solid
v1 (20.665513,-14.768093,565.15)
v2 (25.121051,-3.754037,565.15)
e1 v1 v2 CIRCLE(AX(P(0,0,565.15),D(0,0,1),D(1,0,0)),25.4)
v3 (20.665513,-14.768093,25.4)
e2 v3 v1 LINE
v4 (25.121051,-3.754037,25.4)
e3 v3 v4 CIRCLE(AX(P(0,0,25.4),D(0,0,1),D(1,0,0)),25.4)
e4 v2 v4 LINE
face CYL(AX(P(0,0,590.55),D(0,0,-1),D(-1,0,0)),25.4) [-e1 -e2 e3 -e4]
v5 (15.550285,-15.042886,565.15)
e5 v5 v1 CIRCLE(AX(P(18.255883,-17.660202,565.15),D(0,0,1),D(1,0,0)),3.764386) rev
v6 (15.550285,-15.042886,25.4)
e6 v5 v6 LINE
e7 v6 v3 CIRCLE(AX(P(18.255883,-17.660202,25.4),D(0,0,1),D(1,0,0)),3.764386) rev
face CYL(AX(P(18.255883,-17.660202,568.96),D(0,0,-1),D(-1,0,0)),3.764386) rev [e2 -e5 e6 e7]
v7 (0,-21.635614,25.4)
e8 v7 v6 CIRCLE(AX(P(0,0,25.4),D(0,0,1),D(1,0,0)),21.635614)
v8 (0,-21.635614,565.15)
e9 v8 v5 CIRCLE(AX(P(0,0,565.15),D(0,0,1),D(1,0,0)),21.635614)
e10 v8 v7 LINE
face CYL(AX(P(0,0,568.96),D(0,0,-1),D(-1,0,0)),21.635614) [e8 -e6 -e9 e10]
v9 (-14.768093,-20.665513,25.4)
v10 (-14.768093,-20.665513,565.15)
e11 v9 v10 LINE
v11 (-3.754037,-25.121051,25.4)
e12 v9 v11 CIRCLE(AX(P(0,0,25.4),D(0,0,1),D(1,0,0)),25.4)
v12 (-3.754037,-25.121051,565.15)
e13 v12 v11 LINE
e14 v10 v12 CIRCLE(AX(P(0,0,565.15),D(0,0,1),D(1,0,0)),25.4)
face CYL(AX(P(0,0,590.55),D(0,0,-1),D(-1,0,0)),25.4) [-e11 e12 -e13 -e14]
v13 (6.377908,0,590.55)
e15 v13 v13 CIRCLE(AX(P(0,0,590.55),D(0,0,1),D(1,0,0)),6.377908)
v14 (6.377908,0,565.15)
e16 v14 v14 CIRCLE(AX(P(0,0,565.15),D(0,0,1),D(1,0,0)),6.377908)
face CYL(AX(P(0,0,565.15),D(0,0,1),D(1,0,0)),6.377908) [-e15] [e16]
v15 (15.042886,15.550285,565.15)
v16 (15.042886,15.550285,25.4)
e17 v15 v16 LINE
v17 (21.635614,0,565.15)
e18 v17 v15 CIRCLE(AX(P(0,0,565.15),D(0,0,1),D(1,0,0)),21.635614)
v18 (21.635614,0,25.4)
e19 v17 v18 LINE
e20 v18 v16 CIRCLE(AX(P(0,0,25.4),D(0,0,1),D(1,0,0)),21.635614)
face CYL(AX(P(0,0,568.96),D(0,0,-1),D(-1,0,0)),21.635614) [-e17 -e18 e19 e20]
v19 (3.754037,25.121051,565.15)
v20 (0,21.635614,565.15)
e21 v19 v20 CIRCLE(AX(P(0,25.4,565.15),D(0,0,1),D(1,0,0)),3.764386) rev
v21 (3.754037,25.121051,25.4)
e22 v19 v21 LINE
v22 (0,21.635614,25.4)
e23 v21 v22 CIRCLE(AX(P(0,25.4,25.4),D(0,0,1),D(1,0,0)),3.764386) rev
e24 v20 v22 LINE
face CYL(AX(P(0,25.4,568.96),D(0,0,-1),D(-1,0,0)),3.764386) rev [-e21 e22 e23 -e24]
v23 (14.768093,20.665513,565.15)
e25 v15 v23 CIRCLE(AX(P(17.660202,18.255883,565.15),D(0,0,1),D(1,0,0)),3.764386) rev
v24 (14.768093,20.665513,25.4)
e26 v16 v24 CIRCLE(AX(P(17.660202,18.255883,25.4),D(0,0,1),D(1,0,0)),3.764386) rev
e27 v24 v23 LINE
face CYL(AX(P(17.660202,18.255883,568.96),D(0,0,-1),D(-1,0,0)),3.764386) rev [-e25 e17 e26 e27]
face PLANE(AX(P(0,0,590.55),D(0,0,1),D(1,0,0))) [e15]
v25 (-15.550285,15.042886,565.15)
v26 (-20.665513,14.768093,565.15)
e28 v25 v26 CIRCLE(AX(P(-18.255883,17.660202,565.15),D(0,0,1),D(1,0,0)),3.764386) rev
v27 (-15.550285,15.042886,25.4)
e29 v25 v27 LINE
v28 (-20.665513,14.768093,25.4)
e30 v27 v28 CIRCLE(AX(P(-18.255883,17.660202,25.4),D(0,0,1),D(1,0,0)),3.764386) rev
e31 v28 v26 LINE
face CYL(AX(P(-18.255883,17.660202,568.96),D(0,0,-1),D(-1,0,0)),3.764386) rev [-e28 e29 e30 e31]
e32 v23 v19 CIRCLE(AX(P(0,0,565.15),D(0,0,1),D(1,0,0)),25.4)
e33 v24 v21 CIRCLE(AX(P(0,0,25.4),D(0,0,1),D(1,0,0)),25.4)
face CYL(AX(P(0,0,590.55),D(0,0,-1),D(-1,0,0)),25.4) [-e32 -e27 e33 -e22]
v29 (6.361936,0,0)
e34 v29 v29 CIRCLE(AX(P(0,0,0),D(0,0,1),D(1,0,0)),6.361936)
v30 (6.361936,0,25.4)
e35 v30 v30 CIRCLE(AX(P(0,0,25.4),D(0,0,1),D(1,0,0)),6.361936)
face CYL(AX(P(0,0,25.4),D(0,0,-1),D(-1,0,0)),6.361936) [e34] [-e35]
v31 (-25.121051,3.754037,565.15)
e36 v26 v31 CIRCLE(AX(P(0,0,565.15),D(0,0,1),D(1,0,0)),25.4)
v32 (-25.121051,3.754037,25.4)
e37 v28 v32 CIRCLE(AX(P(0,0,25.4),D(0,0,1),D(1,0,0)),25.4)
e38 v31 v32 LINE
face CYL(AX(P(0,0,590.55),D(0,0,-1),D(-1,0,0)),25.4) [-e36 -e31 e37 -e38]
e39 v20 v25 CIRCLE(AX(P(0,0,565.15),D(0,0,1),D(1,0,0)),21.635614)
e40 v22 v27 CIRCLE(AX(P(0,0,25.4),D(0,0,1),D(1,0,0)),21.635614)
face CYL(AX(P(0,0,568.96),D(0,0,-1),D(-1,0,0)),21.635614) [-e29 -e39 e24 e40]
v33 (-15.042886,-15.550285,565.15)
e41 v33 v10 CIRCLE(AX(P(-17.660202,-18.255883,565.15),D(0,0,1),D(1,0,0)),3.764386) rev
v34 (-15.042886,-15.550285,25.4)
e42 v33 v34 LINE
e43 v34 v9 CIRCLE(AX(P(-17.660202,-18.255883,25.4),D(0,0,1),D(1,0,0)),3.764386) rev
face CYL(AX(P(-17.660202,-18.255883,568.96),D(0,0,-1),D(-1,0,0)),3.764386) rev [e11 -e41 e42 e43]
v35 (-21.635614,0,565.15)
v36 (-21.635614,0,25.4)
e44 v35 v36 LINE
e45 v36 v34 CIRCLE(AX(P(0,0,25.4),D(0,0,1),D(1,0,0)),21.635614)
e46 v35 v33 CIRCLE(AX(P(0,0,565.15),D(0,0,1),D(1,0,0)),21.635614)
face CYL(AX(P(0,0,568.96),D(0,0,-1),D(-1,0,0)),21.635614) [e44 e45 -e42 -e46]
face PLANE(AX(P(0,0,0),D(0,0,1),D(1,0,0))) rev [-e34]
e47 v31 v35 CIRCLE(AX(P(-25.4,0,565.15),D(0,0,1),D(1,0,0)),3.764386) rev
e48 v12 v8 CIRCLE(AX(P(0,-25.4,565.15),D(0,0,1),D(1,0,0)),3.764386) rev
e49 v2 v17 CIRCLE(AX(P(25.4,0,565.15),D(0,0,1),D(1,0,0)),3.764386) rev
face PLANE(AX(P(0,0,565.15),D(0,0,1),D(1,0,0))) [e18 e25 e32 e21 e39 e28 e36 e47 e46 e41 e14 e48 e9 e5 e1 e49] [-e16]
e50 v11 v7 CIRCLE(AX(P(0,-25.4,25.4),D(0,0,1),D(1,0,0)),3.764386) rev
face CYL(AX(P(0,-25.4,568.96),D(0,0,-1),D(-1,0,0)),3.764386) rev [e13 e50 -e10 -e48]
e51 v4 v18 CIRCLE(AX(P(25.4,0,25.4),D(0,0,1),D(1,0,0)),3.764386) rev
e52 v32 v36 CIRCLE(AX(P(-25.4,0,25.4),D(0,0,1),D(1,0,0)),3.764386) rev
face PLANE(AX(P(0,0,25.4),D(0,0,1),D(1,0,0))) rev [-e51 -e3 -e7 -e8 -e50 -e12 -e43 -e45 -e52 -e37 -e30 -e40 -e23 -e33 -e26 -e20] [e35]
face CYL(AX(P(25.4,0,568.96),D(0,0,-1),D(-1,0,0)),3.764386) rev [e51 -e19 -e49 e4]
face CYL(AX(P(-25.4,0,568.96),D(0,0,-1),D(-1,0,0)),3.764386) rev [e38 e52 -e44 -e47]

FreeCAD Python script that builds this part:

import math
import FreeCAD as App
import Part
import Sketcher
from FreeCAD import Vector
Q = App.Units.Quantity

doc = App.newDocument("Part")
body = doc.addObject("PartDesign::Body", "Body")

# Sketch on XY plane
sketch1 = doc.addObject("Sketcher::SketchObject", "Sketch")
body.addObject(sketch1)
sketch1.AttachmentSupport = (doc.XY_Plane, [""])
sketch1.MapMode = "FlatFace"
sketch1.addGeometry(Part.Circle(Vector(0, 0, 0), Vector(0, 0, 1), 25), False)
sketch1.addConstraint([
    Sketcher.Constraint("Coincident", 0, 3, -1, 1),
    Sketcher.Constraint("Diameter", 0, Q("2 in")),
])
pad1 = doc.addObject("PartDesign::Pad", "Pad")
body.addObject(pad1)
pad1.Profile = sketch1
pad1.Length = Q("23.25 in")

# Sketch on XY plane
sketch2 = doc.addObject("Sketcher::SketchObject", "Sketch001")
body.addObject(sketch2)
sketch2.AttachmentSupport = (doc.XY_Plane, [""])
sketch2.MapMode = "FlatFace"
sketch2.addGeometry([
    Part.LineSegment(Vector(-86, 86, 0), Vector(-86, -86, 0)),  # 0
    Part.LineSegment(Vector(-86, -86, 0), Vector(86, -86, 0)),  # 1
    Part.LineSegment(Vector(86, -86, 0), Vector(86, 86, 0)),  # 2
    Part.LineSegment(Vector(86, 86, 0), Vector(-86, 86, 0)),  # 3
    Part.Circle(Vector(0, 0, 0), Vector(0, 0, 1), 6),  # 4
], False)
sketch2.addConstraint([
    Sketcher.Constraint("Coincident", 0, 2, 1, 1),
    Sketcher.Constraint("Coincident", 1, 2, 2, 1),
    Sketcher.Constraint("Coincident", 2, 2, 3, 1),
    Sketcher.Constraint("Coincident", 3, 2, 0, 1),
    Sketcher.Constraint("Vertical", 0),
    Sketcher.Constraint("Horizontal", 1),
    Sketcher.Constraint("Vertical", 2),
    Sketcher.Constraint("Horizontal", 3),
    Sketcher.Constraint("Coincident", 4, 3, -1, 1),
    Sketcher.Constraint("Symmetric", 0, 2, 2, 2, -1, 1),
    Sketcher.Constraint("Equal", 3, 0),
    Sketcher.Constraint("Diameter", 4, 12.723871),
    Sketcher.Constraint("DistanceX", 1, 1, 1, 2, 171.78),
])
pocket1 = doc.addObject("PartDesign::Pocket", "Pocket")
body.addObject(pocket1)
pocket1.Profile = sketch2
pocket1.Length = Q("1 in")
pocket1.Reversed = True

# Sketch on XY plane
sketch3 = doc.addObject("Sketcher::SketchObject", "Sketch002")
body.addObject(sketch3)
sketch3.AttachmentSupport = (doc.XY_Plane, [""])
sketch3.MapMode = "FlatFace"
sketch3.AttachmentOffset = App.Placement(Vector(0, 0, 23.25 * 25.4), App.Rotation())
sketch3.addGeometry([
    Part.LineSegment(Vector(-86, 86, 0), Vector(-86, -86, 0)),  # 0
    Part.LineSegment(Vector(-86, -86, 0), Vector(86, -86, 0)),  # 1
    Part.LineSegment(Vector(86, -86, 0), Vector(86, 86, 0)),  # 2
    Part.LineSegment(Vector(86, 86, 0), Vector(-86, 86, 0)),  # 3
    Part.Circle(Vector(0, 0, 0), Vector(0, 0, 1), 6),  # 4
], False)
sketch3.addConstraint([
    Sketcher.Constraint("Coincident", 0, 2, 1, 1),
    Sketcher.Constraint("Coincident", 1, 2, 2, 1),
    Sketcher.Constraint("Coincident", 2, 2, 3, 1),
    Sketcher.Constraint("Coincident", 3, 2, 0, 1),
    Sketcher.Constraint("Vertical", 0),
    Sketcher.Constraint("Horizontal", 1),
    Sketcher.Constraint("Vertical", 2),
    Sketcher.Constraint("Horizontal", 3),
    Sketcher.Constraint("Coincident", 4, 3, -1, 1),
    Sketcher.Constraint("Symmetric", 0, 2, 2, 2, -1, 1),
    Sketcher.Constraint("Equal", 3, 0),
    Sketcher.Constraint("Diameter", 4, 12.755815),
    Sketcher.Constraint("DistanceX", 1, 1, 1, 2, 171.78),
])
pocket2 = doc.addObject("PartDesign::Pocket", "Pocket001")
body.addObject(pocket2)
pocket2.Profile = sketch3
pocket2.Length = Q("1 in")

# Sketch on XY plane
sketch4 = doc.addObject("Sketcher::SketchObject", "Sketch003")
body.addObject(sketch4)
sketch4.AttachmentSupport = (doc.XY_Plane, [""])
sketch4.MapMode = "FlatFace"
sketch4.addGeometry([
    Part.ArcOfCircle(Part.Circle(Vector(0, 0, 0), Vector(0, 0, 1), 29.2), math.radians(0), math.radians(46)),
    Part.ArcOfCircle(Part.Circle(Vector(17.7, 18.3, 0), Vector(0, 0, 1), 3.8), math.radians(46), math.radians(226)),
    Part.ArcOfCircle(Part.Circle(Vector(0, 0, 0), Vector(0, 0, 1), 21.6), math.radians(0), math.radians(46)),
    Part.ArcOfCircle(Part.Circle(Vector(25.4, 0, 0), Vector(0, 0, 1), 3.8), math.radians(180), math.radians(360)),
], False)
sketch4.addConstraint([
    Sketcher.Constraint("Tangent", 0, 2, 1, 1),
    Sketcher.Constraint("Tangent", 1, 2, 2, 2),
    Sketcher.Constraint("Tangent", 2, 1, 3, 1),
    Sketcher.Constraint("Tangent", 3, 2, 0, 1),
    Sketcher.Constraint("Coincident", 0, 3, -1, 1),
    Sketcher.Constraint("Coincident", 2, 3, -1, 1),
    Sketcher.Constraint("PointOnObject", 3, 3, -1),
    Sketcher.Constraint("DistanceX", -1, 1, 3, 3, Q("1 in")),
    Sketcher.Constraint("Radius", 0, 29.164386),
    Sketcher.Constraint("DistanceX", -1, 1, 1, 3, 17.660202),
])
pocket3 = doc.addObject("PartDesign::Pocket", "Pocket002")
body.addObject(pocket3)
pocket3.Profile = sketch4
pocket3.Length = Q("22.4 in")
pocket3.Reversed = True
doc.recompute()

polarpattern = doc.addObject("PartDesign::PolarPattern", "PolarPattern")
body.addObject(polarpattern)
polarpattern.Originals = [pocket3]
polarpattern.Axis = (doc.Z_Axis, [""])
polarpattern.Angle = 360
polarpattern.Occurrences = 4
body.Tip = polarpattern

doc.recompute()
